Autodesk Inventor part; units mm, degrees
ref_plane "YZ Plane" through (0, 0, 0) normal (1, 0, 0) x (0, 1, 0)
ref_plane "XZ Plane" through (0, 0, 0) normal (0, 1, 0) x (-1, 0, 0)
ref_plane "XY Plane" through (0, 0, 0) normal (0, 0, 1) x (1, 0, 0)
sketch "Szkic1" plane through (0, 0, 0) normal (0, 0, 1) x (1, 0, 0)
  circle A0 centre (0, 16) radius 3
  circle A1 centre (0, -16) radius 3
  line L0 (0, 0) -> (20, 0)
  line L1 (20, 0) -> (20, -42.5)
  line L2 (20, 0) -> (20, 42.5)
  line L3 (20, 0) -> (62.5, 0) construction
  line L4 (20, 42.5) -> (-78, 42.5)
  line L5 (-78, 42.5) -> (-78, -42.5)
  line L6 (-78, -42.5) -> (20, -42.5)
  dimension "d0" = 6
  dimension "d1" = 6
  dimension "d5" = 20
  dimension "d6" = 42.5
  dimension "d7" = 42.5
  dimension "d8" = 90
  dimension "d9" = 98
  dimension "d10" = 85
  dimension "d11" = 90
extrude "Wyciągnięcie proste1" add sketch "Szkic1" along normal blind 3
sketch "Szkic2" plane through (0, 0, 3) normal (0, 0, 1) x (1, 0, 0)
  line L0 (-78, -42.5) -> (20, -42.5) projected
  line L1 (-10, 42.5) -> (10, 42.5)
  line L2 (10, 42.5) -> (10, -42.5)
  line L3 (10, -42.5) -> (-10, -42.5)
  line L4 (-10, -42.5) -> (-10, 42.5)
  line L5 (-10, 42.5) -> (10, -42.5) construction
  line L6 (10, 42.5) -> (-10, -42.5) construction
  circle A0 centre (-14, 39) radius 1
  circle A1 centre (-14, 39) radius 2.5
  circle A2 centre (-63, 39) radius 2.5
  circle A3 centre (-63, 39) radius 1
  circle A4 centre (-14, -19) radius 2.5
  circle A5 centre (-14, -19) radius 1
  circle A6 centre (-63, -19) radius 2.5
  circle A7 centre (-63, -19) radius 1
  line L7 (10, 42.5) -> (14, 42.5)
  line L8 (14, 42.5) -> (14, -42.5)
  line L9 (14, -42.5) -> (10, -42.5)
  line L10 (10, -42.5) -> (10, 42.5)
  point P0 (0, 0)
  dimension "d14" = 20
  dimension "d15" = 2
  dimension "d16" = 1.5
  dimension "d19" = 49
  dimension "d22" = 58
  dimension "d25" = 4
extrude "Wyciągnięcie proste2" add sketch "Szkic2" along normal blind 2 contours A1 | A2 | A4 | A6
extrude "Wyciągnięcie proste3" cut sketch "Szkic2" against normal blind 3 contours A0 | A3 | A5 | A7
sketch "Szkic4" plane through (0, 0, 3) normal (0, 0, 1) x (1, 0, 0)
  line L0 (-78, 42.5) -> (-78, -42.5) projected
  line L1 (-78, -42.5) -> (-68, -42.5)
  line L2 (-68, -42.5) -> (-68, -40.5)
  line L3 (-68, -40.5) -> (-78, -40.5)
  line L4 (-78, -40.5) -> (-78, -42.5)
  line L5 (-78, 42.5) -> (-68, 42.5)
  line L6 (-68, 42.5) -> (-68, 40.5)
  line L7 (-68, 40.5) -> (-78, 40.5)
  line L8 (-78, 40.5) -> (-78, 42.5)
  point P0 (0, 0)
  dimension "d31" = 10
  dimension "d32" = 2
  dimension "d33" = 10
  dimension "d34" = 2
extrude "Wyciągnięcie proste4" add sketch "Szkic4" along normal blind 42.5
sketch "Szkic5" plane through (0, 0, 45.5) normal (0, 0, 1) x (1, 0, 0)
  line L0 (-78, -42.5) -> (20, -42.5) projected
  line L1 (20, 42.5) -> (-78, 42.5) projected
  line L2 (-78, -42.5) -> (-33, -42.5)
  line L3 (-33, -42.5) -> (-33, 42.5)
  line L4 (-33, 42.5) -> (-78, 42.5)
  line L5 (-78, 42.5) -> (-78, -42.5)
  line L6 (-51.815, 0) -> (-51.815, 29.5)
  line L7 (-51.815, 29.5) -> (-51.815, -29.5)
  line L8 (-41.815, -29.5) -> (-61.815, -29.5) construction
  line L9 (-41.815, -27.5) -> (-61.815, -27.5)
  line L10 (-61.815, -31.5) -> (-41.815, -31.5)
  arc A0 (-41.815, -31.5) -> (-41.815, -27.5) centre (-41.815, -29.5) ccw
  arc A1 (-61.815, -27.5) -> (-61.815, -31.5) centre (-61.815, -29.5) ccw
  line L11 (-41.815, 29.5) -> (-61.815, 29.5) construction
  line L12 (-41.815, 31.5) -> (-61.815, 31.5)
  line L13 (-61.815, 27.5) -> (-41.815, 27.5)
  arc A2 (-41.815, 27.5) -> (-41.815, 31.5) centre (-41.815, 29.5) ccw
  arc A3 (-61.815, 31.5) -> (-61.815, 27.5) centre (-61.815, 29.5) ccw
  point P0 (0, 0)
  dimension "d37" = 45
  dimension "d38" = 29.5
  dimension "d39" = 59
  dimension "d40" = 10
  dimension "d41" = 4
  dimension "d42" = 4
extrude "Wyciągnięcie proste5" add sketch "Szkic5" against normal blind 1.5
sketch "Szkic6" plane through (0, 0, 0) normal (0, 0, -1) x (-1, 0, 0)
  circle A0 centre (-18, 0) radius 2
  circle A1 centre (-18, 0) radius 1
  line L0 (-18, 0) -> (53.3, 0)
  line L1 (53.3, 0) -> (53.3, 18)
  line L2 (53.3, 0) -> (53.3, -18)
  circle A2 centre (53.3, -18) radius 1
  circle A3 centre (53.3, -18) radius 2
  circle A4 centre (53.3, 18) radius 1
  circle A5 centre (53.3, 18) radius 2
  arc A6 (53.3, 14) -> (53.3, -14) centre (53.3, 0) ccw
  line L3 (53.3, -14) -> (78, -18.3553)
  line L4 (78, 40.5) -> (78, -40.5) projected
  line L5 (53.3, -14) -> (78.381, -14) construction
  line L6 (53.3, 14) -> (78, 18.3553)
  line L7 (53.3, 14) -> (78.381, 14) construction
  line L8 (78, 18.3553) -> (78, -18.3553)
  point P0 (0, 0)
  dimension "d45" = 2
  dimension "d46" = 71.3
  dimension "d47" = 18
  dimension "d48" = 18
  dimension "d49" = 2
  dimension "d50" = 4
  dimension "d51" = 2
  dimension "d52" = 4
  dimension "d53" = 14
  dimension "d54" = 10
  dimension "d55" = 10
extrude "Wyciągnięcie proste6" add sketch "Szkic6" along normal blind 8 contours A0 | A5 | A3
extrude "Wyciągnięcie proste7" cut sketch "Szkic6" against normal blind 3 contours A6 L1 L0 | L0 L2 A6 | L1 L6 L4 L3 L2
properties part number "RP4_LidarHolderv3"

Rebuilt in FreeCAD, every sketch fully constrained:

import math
import FreeCAD as App
import Part
import Sketcher

V = App.Vector
Q = App.Units.Quantity

doc = App.newDocument("Part")
params = doc.addObject("Spreadsheet::Sheet", "Params")
for row, (alias, value) in enumerate([
    ("sketch1_diameter", "6 mm"),
    ("sketch1_width", "98 mm"),
    ("sketch1_height", "85 mm"),
    ("pad1_length", "3 mm"),
    ("sketch2_diameter", "2 mm"),
    ("sketch2_diameter2", "5 mm"),
    ("pad2_length", "2 mm"),
    ("sketch3_diameter", "2 mm"),
    ("pocket1_length", "3 mm"),
    ("sketch4_width", "10 mm"),
    ("sketch4_height", "2 mm"),
    ("pad3_length", "42.5 mm"),
    ("sketch5_radius", "2 mm"),
    ("sketch5_width", "45 mm"),
    ("sketch5_width2", "10 mm"),
    ("sketch5_height", "85 mm"),
    ("pad4_length", "1.5 mm"),
    ("sketch6_diameter", "4 mm"),
    ("sketch6_diameter2", "2 mm"),
    ("pad5_length", "8 mm"),
    ("sketch7_radius", "14 mm"),
    ("pocket2_length", "3 mm"),
], start=1):
    params.set(f"A{row}", alias)
    params.set(f"B{row}", "=" + value)
    params.setAlias(f"B{row}", alias)

body = doc.addObject("PartDesign::Body", "Body")

# Sketch on XY plane
sketch1 = doc.addObject("Sketcher::SketchObject", "Sketch")
body.addObject(sketch1)
sketch1.AttachmentSupport = (doc.XY_Plane, [""])
sketch1.MapMode = "FlatFace"
sketch1.addGeometry(Part.LineSegment(V(20, -42.5, 0), V(20, 42.5, 0)), False)
sketch1.addGeometry(Part.LineSegment(V(20, 42.5, 0), V(-78, 42.5, 0)), False)
sketch1.addGeometry(Part.LineSegment(V(-78, 42.5, 0), V(-78, -42.5, 0)), False)
sketch1.addGeometry(Part.LineSegment(V(-78, -42.5, 0), V(20, -42.5, 0)), False)
sketch1.addGeometry(Part.Circle(V(0, -16, 0), V(0, 0, 1), 3), False)
sketch1.addGeometry(Part.Circle(V(0, 16, 0), V(0, 0, 1), 3), False)
sketch1.addConstraint(Sketcher.Constraint("Coincident", 0, 2, 1, 1))
sketch1.addConstraint(Sketcher.Constraint("Coincident", 1, 2, 2, 1))
sketch1.addConstraint(Sketcher.Constraint("Coincident", 2, 2, 3, 1))
sketch1.addConstraint(Sketcher.Constraint("Coincident", 3, 2, 0, 1))
sketch1.addConstraint(Sketcher.Constraint("Vertical", 0))
sketch1.addConstraint(Sketcher.Constraint("Horizontal", 1))
sketch1.addConstraint(Sketcher.Constraint("Vertical", 2))
sketch1.addConstraint(Sketcher.Constraint("Horizontal", 3))
sketch1.addConstraint(Sketcher.Constraint("Equal", 4, 5))
sketch1.addConstraint(Sketcher.Constraint("Symmetric", 4, 3, 5, 3, -1, 1))
sketch1.addConstraint(Sketcher.Constraint("PointOnObject", 4, 3, -2))
sketch1.addConstraint(Sketcher.Constraint("Diameter", 4, Q("6 mm")))
sketch1.addConstraint(Sketcher.Constraint("DistanceX", 1, 2, 1, 1, Q("98 mm")))
sketch1.addConstraint(Sketcher.Constraint("DistanceY", 0, 1, 0, 2, Q("85 mm")))
sketch1.addConstraint(Sketcher.Constraint("DistanceX", -1, 1, 0, 2, Q("20 mm")))
sketch1.addConstraint(Sketcher.Constraint("DistanceY", -1, 1, 0, 2, Q("42.5 mm")))
sketch1.addConstraint(Sketcher.Constraint("DistanceY", 4, 3, -1, 1, Q("16 mm")))
sketch1.setExpression("Constraints[11]", "Params.sketch1_diameter")
sketch1.setExpression("Constraints[12]", "Params.sketch1_width")
sketch1.setExpression("Constraints[13]", "Params.sketch1_height")
pad1 = doc.addObject("PartDesign::Pad", "Pad")
body.addObject(pad1)
pad1.Profile = sketch1
pad1.setExpression("Length", "Params.pad1_length")

# Sketch on XY plane
sketch2 = doc.addObject("Sketcher::SketchObject", "Sketch001")
body.addObject(sketch2)
sketch2.AttachmentSupport = (doc.XY_Plane, [""])
sketch2.MapMode = "FlatFace"
sketch2.AttachmentOffset = App.Placement(V(0, 0, 3), App.Rotation())
sketch2.addGeometry(Part.Circle(V(-14, 39, 0), V(0, 0, 1), 2.5), False)
sketch2.addGeometry(Part.Circle(V(-14, 39, 0), V(0, 0, 1), 1), False)
sketch2.addGeometry(Part.Circle(V(-63, 39, 0), V(0, 0, 1), 2.5), False)
sketch2.addGeometry(Part.Circle(V(-63, 39, 0), V(0, 0, 1), 1), False)
sketch2.addGeometry(Part.Circle(V(-14, -19, 0), V(0, 0, 1), 2.5), False)
sketch2.addGeometry(Part.Circle(V(-14, -19, 0), V(0, 0, 1), 1), False)
sketch2.addGeometry(Part.Circle(V(-63, -19, 0), V(0, 0, 1), 2.5), False)
sketch2.addGeometry(Part.Circle(V(-63, -19, 0), V(0, 0, 1), 1), False)
sketch2.addConstraint(Sketcher.Constraint("Coincident", 1, 3, 0, 3))
sketch2.addConstraint(Sketcher.Constraint("Coincident", 3, 3, 2, 3))
sketch2.addConstraint(Sketcher.Constraint("Coincident", 5, 3, 4, 3))
sketch2.addConstraint(Sketcher.Constraint("Coincident", 7, 3, 6, 3))
sketch2.addConstraint(Sketcher.Constraint("Equal", 0, 2))
sketch2.addConstraint(Sketcher.Constraint("Equal", 1, 3))
sketch2.addConstraint(Sketcher.Constraint("Equal", 2, 4))
sketch2.addConstraint(Sketcher.Constraint("Equal", 3, 5))
sketch2.addConstraint(Sketcher.Constraint("Equal", 4, 6))
sketch2.addConstraint(Sketcher.Constraint("Equal", 5, 7))
sketch2.addConstraint(Sketcher.Constraint("Horizontal", 1, 3, 2, 3))
sketch2.addConstraint(Sketcher.Constraint("Horizontal", 5, 3, 6, 3))
sketch2.addConstraint(Sketcher.Constraint("Vertical", 1, 3, 4, 3))
sketch2.addConstraint(Sketcher.Constraint("Vertical", 3, 3, 6, 3))
sketch2.addConstraint(Sketcher.Constraint("Diameter", 1, Q("2 mm")))
sketch2.addConstraint(Sketcher.Constraint("Diameter", 0, Q("5 mm")))
sketch2.addConstraint(Sketcher.Constraint("DistanceX", 2, 3, 0, 3, Q("49 mm")))
sketch2.addConstraint(Sketcher.Constraint("DistanceY", 4, 3, 0, 3, Q("58 mm")))
sketch2.addConstraint(Sketcher.Constraint("DistanceX", 0, 3, -1, 1, Q("14 mm")))
sketch2.addConstraint(Sketcher.Constraint("DistanceY", -1, 1, 0, 3, Q("39 mm")))
sketch2.setExpression("Constraints[14]", "Params.sketch2_diameter")
sketch2.setExpression("Constraints[15]", "Params.sketch2_diameter2")
pad2 = doc.addObject("PartDesign::Pad", "Pad001")
body.addObject(pad2)
pad2.Profile = sketch2
pad2.setExpression("Length", "Params.pad2_length")

# Sketch on XY plane
sketch3 = doc.addObject("Sketcher::SketchObject", "Sketch002")
body.addObject(sketch3)
sketch3.AttachmentSupport = (doc.XY_Plane, [""])
sketch3.MapMode = "FlatFace"
sketch3.AttachmentOffset = App.Placement(V(0, 0, 3), App.Rotation())
sketch3.addGeometry(Part.Circle(V(-14, 39, 0), V(0, 0, 1), 1), False)
sketch3.addGeometry(Part.Circle(V(-63, 39, 0), V(0, 0, 1), 1), False)
sketch3.addGeometry(Part.Circle(V(-14, -19, 0), V(0, 0, 1), 1), False)
sketch3.addGeometry(Part.Circle(V(-63, -19, 0), V(0, 0, 1), 1), False)
sketch3.addConstraint(Sketcher.Constraint("Equal", 0, 1))
sketch3.addConstraint(Sketcher.Constraint("Equal", 1, 2))
sketch3.addConstraint(Sketcher.Constraint("Equal", 2, 3))
sketch3.addConstraint(Sketcher.Constraint("Horizontal", 0, 3, 1, 3))
sketch3.addConstraint(Sketcher.Constraint("Horizontal", 2, 3, 3, 3))
sketch3.addConstraint(Sketcher.Constraint("Vertical", 0, 3, 2, 3))
sketch3.addConstraint(Sketcher.Constraint("Vertical", 1, 3, 3, 3))
sketch3.addConstraint(Sketcher.Constraint("Diameter", 0, Q("2 mm")))
sketch3.addConstraint(Sketcher.Constraint("DistanceX", 1, 3, 0, 3, Q("49 mm")))
sketch3.addConstraint(Sketcher.Constraint("DistanceY", 2, 3, 0, 3, Q("58 mm")))
sketch3.addConstraint(Sketcher.Constraint("DistanceX", 0, 3, -1, 1, Q("14 mm")))
sketch3.addConstraint(Sketcher.Constraint("DistanceY", -1, 1, 0, 3, Q("39 mm")))
sketch3.setExpression("Constraints[7]", "Params.sketch3_diameter")
pocket1 = doc.addObject("PartDesign::Pocket", "Pocket")
body.addObject(pocket1)
pocket1.Profile = sketch3
pocket1.setExpression("Length", "Params.pocket1_length")

# Sketch on XY plane
sketch4 = doc.addObject("Sketcher::SketchObject", "Sketch003")
body.addObject(sketch4)
sketch4.AttachmentSupport = (doc.XY_Plane, [""])
sketch4.MapMode = "FlatFace"
sketch4.AttachmentOffset = App.Placement(V(0, 0, 3), App.Rotation())
sketch4.addGeometry(Part.LineSegment(V(-68, 42.5, 0), V(-78, 42.5, 0)), False)
sketch4.addGeometry(Part.LineSegment(V(-78, 42.5, 0), V(-78, 40.5, 0)), False)
sketch4.addGeometry(Part.LineSegment(V(-78, 40.5, 0), V(-68, 40.5, 0)), False)
sketch4.addGeometry(Part.LineSegment(V(-68, 40.5, 0), V(-68, 42.5, 0)), False)
sketch4.addGeometry(Part.LineSegment(V(-68, -40.5, 0), V(-78, -40.5, 0)), False)
sketch4.addGeometry(Part.LineSegment(V(-78, -40.5, 0), V(-78, -42.5, 0)), False)
sketch4.addGeometry(Part.LineSegment(V(-78, -42.5, 0), V(-68, -42.5, 0)), False)
sketch4.addGeometry(Part.LineSegment(V(-68, -42.5, 0), V(-68, -40.5, 0)), False)
sketch4.addConstraint(Sketcher.Constraint("Coincident", 0, 2, 1, 1))
sketch4.addConstraint(Sketcher.Constraint("Coincident", 1, 2, 2, 1))
sketch4.addConstraint(Sketcher.Constraint("Coincident", 2, 2, 3, 1))
sketch4.addConstraint(Sketcher.Constraint("Coincident", 3, 2, 0, 1))
sketch4.addConstraint(Sketcher.Constraint("Coincident", 4, 2, 5, 1))
sketch4.addConstraint(Sketcher.Constraint("Coincident", 5, 2, 6, 1))
sketch4.addConstraint(Sketcher.Constraint("Coincident", 6, 2, 7, 1))
sketch4.addConstraint(Sketcher.Constraint("Coincident", 7, 2, 4, 1))
sketch4.addConstraint(Sketcher.Constraint("Horizontal", 0))
sketch4.addConstraint(Sketcher.Constraint("Vertical", 1))
sketch4.addConstraint(Sketcher.Constraint("Horizontal", 2))
sketch4.addConstraint(Sketcher.Constraint("Vertical", 3))
sketch4.addConstraint(Sketcher.Constraint("Horizontal", 4))
sketch4.addConstraint(Sketcher.Constraint("Vertical", 5))
sketch4.addConstraint(Sketcher.Constraint("Horizontal", 6))
sketch4.addConstraint(Sketcher.Constraint("Vertical", 7))
sketch4.addConstraint(Sketcher.Constraint("Symmetric", 1, 2, 4, 2, -1))
sketch4.addConstraint(Sketcher.Constraint("Symmetric", 3, 2, 6, 2, -1))
sketch4.addConstraint(Sketcher.Constraint("DistanceX", 0, 2, 0, 1, Q("10 mm")))
sketch4.addConstraint(Sketcher.Constraint("DistanceY", 1, 2, 1, 1, Q("2 mm")))
sketch4.addConstraint(Sketcher.Constraint("DistanceX", 0, 2, -1, 1, Q("78 mm")))
sketch4.addConstraint(Sketcher.Constraint("DistanceY", 4, 2, 1, 2, Q("81 mm")))
sketch4.setExpression("Constraints[18]", "Params.sketch4_width")
sketch4.setExpression("Constraints[19]", "Params.sketch4_height")
pad3 = doc.addObject("PartDesign::Pad", "Pad002")
body.addObject(pad3)
pad3.Profile = sketch4
pad3.setExpression("Length", "Params.pad3_length")

# Sketch on XY plane
sketch5 = doc.addObject("Sketcher::SketchObject", "Sketch004")
body.addObject(sketch5)
sketch5.AttachmentSupport = (doc.XY_Plane, [""])
sketch5.MapMode = "FlatFace"
sketch5.AttachmentOffset = App.Placement(V(0, 0, 45.5), App.Rotation())
sketch5.addGeometry(Part.LineSegment(V(-78, 42.5, 0), V(-78, -42.5, 0)), False)
sketch5.addGeometry(Part.LineSegment(V(-78, -42.5, 0), V(-33, -42.5, 0)), False)
sketch5.addGeometry(Part.LineSegment(V(-33, -42.5, 0), V(-33, 42.5, 0)), False)
sketch5.addGeometry(Part.LineSegment(V(-33, 42.5, 0), V(-78, 42.5, 0)), False)
sketch5.addGeometry(Part.LineSegment(V(-61.8, -27.5, 0), V(-51.8, -27.5, 0)), False)
sketch5.addGeometry(Part.LineSegment(V(-51.8, -27.5, 0), V(-41.8, -27.5, 0)), False)
sketch5.addGeometry(Part.ArcOfCircle(Part.Circle(V(-41.8, -29.5, 0), V(0, 0, 1), 2), math.radians(-90), math.radians(90)), False)
sketch5.addGeometry(Part.LineSegment(V(-41.8, -31.5, 0), V(-61.8, -31.5, 0)), False)
sketch5.addGeometry(Part.ArcOfCircle(Part.Circle(V(-61.8, -29.5, 0), V(0, 0, 1), 2), math.radians(90), math.radians(270)), False)
sketch5.addGeometry(Part.LineSegment(V(-41.8, 27.5, 0), V(-51.8, 27.5, 0)), False)
sketch5.addGeometry(Part.LineSegment(V(-51.8, 27.5, 0), V(-61.8, 27.5, 0)), False)
sketch5.addGeometry(Part.ArcOfCircle(Part.Circle(V(-61.8, 29.5, 0), V(0, 0, 1), 2), math.radians(90), math.radians(270)), False)
sketch5.addGeometry(Part.LineSegment(V(-61.8, 31.5, 0), V(-41.8, 31.5, 0)), False)
sketch5.addGeometry(Part.ArcOfCircle(Part.Circle(V(-41.8, 29.5, 0), V(0, 0, 1), 2), math.radians(-90), math.radians(90)), False)
sketch5.addConstraint(Sketcher.Constraint("Coincident", 0, 2, 1, 1))
sketch5.addConstraint(Sketcher.Constraint("Coincident", 1, 2, 2, 1))
sketch5.addConstraint(Sketcher.Constraint("Coincident", 2, 2, 3, 1))
sketch5.addConstraint(Sketcher.Constraint("Coincident", 3, 2, 0, 1))
sketch5.addConstraint(Sketcher.Constraint("Coincident", 4, 2, 5, 1))
sketch5.addConstraint(Sketcher.Constraint("Tangent", 5, 2, 6, 2))
sketch5.addConstraint(Sketcher.Constraint("Tangent", 6, 1, 7, 1))
sketch5.addConstraint(Sketcher.Constraint("Tangent", 7, 2, 8, 2))
sketch5.addConstraint(Sketcher.Constraint("Tangent", 8, 1, 4, 1))
sketch5.addConstraint(Sketcher.Constraint("Coincident", 9, 2, 10, 1))
sketch5.addConstraint(Sketcher.Constraint("Tangent", 10, 2, 11, 2))
sketch5.addConstraint(Sketcher.Constraint("Tangent", 11, 1, 12, 1))
sketch5.addConstraint(Sketcher.Constraint("Tangent", 12, 2, 13, 2))
sketch5.addConstraint(Sketcher.Constraint("Tangent", 13, 1, 9, 1))
sketch5.addConstraint(Sketcher.Constraint("Vertical", 0))
sketch5.addConstraint(Sketcher.Constraint("Horizontal", 1))
sketch5.addConstraint(Sketcher.Constraint("Vertical", 2))
sketch5.addConstraint(Sketcher.Constraint("Horizontal", 3))
sketch5.addConstraint(Sketcher.Constraint("Horizontal", 4))
sketch5.addConstraint(Sketcher.Constraint("Horizontal", 5))
sketch5.addConstraint(Sketcher.Constraint("Horizontal", 7))
sketch5.addConstraint(Sketcher.Constraint("Horizontal", 9))
sketch5.addConstraint(Sketcher.Constraint("Horizontal", 10))
sketch5.addConstraint(Sketcher.Constraint("Horizontal", 12))
sketch5.addConstraint(Sketcher.Constraint("Equal", 8, 11))
sketch5.addConstraint(Sketcher.Constraint("Symmetric", 8, 3, 11, 3, -1))
sketch5.addConstraint(Sketcher.Constraint("Vertical", 6, 3, 13, 3))
sketch5.addConstraint(Sketcher.Constraint("Vertical", 4, 2, 9, 2))
sketch5.addConstraint(Sketcher.Constraint("Equal", 4, 5))
sketch5.addConstraint(Sketcher.Constraint("Radius", 6, Q("2 mm")))
sketch5.addConstraint(Sketcher.Constraint("DistanceX", 1, 1, 1, 2, Q("45 mm")))
sketch5.addConstraint(Sketcher.Constraint("DistanceX", 4, 1, 4, 2, Q("10 mm")))
sketch5.addConstraint(Sketcher.Constraint("DistanceY", 8, 3, 11, 3, Q("59 mm")))
sketch5.addConstraint(Sketcher.Constraint("DistanceY", 0, 2, 0, 1, Q("85 mm")))
sketch5.addConstraint(Sketcher.Constraint("DistanceX", 0, 2, -1, 1, Q("78 mm")))
sketch5.addConstraint(Sketcher.Constraint("DistanceY", 0, 2, 8, 3, Q("13 mm")))
sketch5.addConstraint(Sketcher.Constraint("DistanceX", 6, 3, -1, 1, Q("41.815 mm")))
sketch5.setExpression("Constraints[29]", "Params.sketch5_radius")
sketch5.setExpression("Constraints[30]", "Params.sketch5_width")
sketch5.setExpression("Constraints[31]", "Params.sketch5_width2")
sketch5.setExpression("Constraints[33]", "Params.sketch5_height")
pad4 = doc.addObject("PartDesign::Pad", "Pad003")
body.addObject(pad4)
pad4.Profile = sketch5
pad4.setExpression("Length", "Params.pad4_length")
pad4.Reversed = True

# Sketch on XY plane
sketch6 = doc.addObject("Sketcher::SketchObject", "Sketch005")
body.addObject(sketch6)
sketch6.AttachmentSupport = (doc.XY_Plane, [""])
sketch6.MapMode = "FlatFace"
sketch6.addGeometry(Part.Circle(V(18, 0, 0), V(0, 0, 1), 2), False)
sketch6.addGeometry(Part.Circle(V(18, 0, 0), V(0, 0, 1), 1), False)
sketch6.addGeometry(Part.Circle(V(-53.3, 18, 0), V(0, 0, 1), 2), False)
sketch6.addGeometry(Part.Circle(V(-53.3, 18, 0), V(0, 0, 1), 1), False)
sketch6.addGeometry(Part.Circle(V(-53.3, -18, 0), V(0, 0, 1), 2), False)
sketch6.addGeometry(Part.Circle(V(-53.3, -18, 0), V(0, 0, 1), 1), False)
sketch6.addConstraint(Sketcher.Constraint("Coincident", 1, 3, 0, 3))
sketch6.addConstraint(Sketcher.Constraint("Coincident", 3, 3, 2, 3))
sketch6.addConstraint(Sketcher.Constraint("Coincident", 5, 3, 4, 3))
sketch6.addConstraint(Sketcher.Constraint("Equal", 0, 2))
sketch6.addConstraint(Sketcher.Constraint("Equal", 1, 3))
sketch6.addConstraint(Sketcher.Constraint("Equal", 2, 4))
sketch6.addConstraint(Sketcher.Constraint("Equal", 3, 5))
sketch6.addConstraint(Sketcher.Constraint("Symmetric", 2, 3, 4, 3, -1))
sketch6.addConstraint(Sketcher.Constraint("PointOnObject", 0, 3, -1))
sketch6.addConstraint(Sketcher.Constraint("Diameter", 0, Q("4 mm")))
sketch6.addConstraint(Sketcher.Constraint("Diameter", 1, Q("2 mm")))
sketch6.addConstraint(Sketcher.Constraint("DistanceX", -1, 1, 0, 3, Q("18 mm")))
sketch6.addConstraint(Sketcher.Constraint("DistanceY", -1, 1, 2, 3, Q("18 mm")))
sketch6.addConstraint(Sketcher.Constraint("DistanceX", 2, 3, 0, 3, Q("71.3 mm")))
sketch6.setExpression("Constraints[9]", "Params.sketch6_diameter")
sketch6.setExpression("Constraints[10]", "Params.sketch6_diameter2")
pad5 = doc.addObject("PartDesign::Pad", "Pad004")
body.addObject(pad5)
pad5.Profile = sketch6
pad5.setExpression("Length", "Params.pad5_length")
pad5.Reversed = True

# Sketch on XY plane
sketch7 = doc.addObject("Sketcher::SketchObject", "Sketch006")
body.addObject(sketch7)
sketch7.AttachmentSupport = (doc.XY_Plane, [""])
sketch7.MapMode = "FlatFace"
sketch7.addGeometry(Part.ArcOfCircle(Part.Circle(V(-53, 0, 0), V(0, 0, 1), 14), math.radians(-90), math.radians(90)), False)
sketch7.addGeometry(Part.LineSegment(V(-53, -14, 0), V(-78, -18, 0)), False)
sketch7.addGeometry(Part.LineSegment(V(-78, -18, 0), V(-78, 18, 0)), False)
sketch7.addGeometry(Part.LineSegment(V(-78, 18, 0), V(-53, 14, 0)), False)
sketch7.addConstraint(Sketcher.Constraint("Coincident", 0, 1, 1, 1))
sketch7.addConstraint(Sketcher.Constraint("Coincident", 1, 2, 2, 1))
sketch7.addConstraint(Sketcher.Constraint("Coincident", 2, 2, 3, 1))
sketch7.addConstraint(Sketcher.Constraint("Coincident", 3, 2, 0, 2))
sketch7.addConstraint(Sketcher.Constraint("Vertical", 2))
sketch7.addConstraint(Sketcher.Constraint("Symmetric", 0, 1, 3, 2, -1))
sketch7.addConstraint(Sketcher.Constraint("Equal", 1, 3))
sketch7.addConstraint(Sketcher.Constraint("Radius", 0, Q("14 mm")))
sketch7.addConstraint(Sketcher.Constraint("Angle", 3, Q("-10 deg")))
sketch7.addConstraint(Sketcher.Constraint("DistanceX", 1, 2, -1, 1, Q("78 mm")))
sketch7.addConstraint(Sketcher.Constraint("DistanceX", 0, 3, -1, 1, Q("53.3 mm")))
sketch7.addConstraint(Sketcher.Constraint("DistanceX", 0, 1, -1, 1, Q("53.3 mm")))
sketch7.setExpression("Constraints[7]", "Params.sketch7_radius")
pocket2 = doc.addObject("PartDesign::Pocket", "Pocket001")
body.addObject(pocket2)
pocket2.Profile = sketch7
pocket2.setExpression("Length", "Params.pocket2_length")
pocket2.Reversed = True

doc.recompute()
